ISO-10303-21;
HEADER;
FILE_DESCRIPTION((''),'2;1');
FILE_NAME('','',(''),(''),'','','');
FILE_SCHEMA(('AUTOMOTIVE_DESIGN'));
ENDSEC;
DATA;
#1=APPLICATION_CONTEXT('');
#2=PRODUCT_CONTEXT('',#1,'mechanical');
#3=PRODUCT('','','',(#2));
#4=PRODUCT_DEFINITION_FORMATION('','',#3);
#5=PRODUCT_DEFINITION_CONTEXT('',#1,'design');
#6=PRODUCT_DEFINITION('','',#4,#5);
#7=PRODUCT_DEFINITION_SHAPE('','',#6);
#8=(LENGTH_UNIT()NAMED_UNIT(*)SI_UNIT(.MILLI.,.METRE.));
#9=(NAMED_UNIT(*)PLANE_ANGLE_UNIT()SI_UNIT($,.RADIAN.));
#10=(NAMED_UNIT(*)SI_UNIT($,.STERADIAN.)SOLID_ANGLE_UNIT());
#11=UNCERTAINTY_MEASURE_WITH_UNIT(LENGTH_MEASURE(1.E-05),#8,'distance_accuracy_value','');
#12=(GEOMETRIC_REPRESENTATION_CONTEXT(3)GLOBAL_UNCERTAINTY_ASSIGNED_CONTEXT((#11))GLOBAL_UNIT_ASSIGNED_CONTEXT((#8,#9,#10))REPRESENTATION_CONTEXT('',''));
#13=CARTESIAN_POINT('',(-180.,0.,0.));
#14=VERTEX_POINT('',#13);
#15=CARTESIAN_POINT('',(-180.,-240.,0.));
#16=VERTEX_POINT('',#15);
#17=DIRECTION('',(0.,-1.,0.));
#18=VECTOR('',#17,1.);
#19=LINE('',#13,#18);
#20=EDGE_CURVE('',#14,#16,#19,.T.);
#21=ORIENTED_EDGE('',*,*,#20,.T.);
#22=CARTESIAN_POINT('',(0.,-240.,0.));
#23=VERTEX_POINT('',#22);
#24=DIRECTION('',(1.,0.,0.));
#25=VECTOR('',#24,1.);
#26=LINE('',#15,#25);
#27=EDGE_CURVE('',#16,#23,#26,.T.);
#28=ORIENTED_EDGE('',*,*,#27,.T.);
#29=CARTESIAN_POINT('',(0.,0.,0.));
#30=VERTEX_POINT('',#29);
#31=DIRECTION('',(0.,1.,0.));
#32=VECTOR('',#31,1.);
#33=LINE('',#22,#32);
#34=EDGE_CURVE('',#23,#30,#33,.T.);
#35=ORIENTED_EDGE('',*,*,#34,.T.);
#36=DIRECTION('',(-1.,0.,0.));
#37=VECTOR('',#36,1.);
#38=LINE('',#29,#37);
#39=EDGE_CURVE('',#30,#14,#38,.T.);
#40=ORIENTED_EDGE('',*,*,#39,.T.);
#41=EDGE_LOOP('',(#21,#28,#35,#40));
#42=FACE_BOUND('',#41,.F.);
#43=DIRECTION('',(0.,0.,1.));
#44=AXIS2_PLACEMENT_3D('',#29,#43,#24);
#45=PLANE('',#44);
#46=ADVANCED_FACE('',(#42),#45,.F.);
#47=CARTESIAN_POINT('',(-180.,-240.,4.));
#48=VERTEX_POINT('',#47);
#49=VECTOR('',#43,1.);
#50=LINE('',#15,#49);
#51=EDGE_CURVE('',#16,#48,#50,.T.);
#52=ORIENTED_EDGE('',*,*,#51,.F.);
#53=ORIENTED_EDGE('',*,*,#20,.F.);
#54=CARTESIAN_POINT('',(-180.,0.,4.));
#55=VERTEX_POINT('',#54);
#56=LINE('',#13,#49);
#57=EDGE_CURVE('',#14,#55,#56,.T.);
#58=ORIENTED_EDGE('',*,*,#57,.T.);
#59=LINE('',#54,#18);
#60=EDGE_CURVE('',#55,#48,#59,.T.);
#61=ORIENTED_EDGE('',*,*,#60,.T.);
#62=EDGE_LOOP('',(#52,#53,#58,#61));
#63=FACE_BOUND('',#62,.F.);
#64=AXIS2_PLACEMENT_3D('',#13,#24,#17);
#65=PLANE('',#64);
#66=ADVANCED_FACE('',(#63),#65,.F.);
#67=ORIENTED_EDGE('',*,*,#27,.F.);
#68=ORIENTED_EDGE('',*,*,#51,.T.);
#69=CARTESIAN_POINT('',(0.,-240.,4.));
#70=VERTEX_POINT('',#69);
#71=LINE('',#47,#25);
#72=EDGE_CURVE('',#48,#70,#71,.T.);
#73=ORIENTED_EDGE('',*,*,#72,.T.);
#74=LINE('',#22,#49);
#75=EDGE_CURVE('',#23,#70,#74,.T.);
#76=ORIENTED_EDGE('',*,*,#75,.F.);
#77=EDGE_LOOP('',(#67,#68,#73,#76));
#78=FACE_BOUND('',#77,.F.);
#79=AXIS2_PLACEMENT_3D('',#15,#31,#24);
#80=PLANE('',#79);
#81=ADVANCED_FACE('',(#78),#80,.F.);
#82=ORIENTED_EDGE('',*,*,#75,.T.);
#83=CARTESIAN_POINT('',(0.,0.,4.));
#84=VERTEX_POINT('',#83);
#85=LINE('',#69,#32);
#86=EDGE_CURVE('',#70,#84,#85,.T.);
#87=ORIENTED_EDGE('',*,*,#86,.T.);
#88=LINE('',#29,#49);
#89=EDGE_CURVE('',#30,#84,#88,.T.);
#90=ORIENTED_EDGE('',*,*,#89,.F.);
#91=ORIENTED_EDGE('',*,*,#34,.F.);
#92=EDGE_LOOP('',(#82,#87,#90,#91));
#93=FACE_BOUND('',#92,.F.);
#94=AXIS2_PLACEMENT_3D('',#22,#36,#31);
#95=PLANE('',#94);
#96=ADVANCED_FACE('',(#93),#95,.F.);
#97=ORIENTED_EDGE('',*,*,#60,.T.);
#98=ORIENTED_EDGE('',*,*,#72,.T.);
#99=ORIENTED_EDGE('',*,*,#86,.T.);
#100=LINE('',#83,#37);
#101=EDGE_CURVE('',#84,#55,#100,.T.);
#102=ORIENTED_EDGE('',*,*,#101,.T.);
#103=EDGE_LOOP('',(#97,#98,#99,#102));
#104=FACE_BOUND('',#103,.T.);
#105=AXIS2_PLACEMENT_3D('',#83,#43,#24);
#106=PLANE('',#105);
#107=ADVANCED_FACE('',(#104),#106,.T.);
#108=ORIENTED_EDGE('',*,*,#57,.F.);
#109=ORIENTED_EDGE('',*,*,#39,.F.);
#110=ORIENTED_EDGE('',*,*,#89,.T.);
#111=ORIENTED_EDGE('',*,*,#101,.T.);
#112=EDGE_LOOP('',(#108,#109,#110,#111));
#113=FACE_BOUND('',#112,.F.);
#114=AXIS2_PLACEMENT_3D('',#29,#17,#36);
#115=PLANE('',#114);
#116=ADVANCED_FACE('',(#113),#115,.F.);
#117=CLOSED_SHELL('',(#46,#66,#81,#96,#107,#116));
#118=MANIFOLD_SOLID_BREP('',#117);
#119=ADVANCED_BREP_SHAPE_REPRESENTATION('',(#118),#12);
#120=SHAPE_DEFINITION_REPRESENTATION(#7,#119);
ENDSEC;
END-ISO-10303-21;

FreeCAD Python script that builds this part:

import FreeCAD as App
import Part
import Sketcher

V = App.Vector

doc = App.newDocument("Part")
body = doc.addObject("PartDesign::Body", "Body")

sketch1 = body.newObject("Sketcher::SketchObject", "Sketch")
sketch1.AttachmentSupport = (doc.getObject("XY_Plane"), [""])
sketch1.MapMode = "FlatFace"
sketch1.addGeometry([
    Part.LineSegment(V(0, -240, 0), V(0, 0, 0)),
    Part.LineSegment(V(0, 0, 0), V(-180, 0, 0)),
    Part.LineSegment(V(-180, 0, 0), V(-180, -240, 0)),
    Part.LineSegment(V(-180, -240, 0), V(0, -240, 0)),
], False)
sketch1.addConstraint([
    Sketcher.Constraint("Coincident", 0, 2, 1, 1),
    Sketcher.Constraint("Coincident", 1, 2, 2, 1),
    Sketcher.Constraint("Coincident", 2, 2, 3, 1),
    Sketcher.Constraint("Coincident", 3, 2, 0, 1),
    Sketcher.Constraint("Vertical", 0),
    Sketcher.Constraint("Horizontal", 1),
    Sketcher.Constraint("Vertical", 2),
    Sketcher.Constraint("Horizontal", 3),
    Sketcher.Constraint("Coincident", 0, 2, -1, 1),
    Sketcher.Constraint("DistanceX", 1, 2, 1, 1, 180.0),
    Sketcher.Constraint("DistanceY", 0, 1, 0, 2, 240.0),
])
pad1 = body.newObject("PartDesign::Pad", "Pad")
pad1.Profile = sketch1
pad1.Length = 4

doc.recompute()
